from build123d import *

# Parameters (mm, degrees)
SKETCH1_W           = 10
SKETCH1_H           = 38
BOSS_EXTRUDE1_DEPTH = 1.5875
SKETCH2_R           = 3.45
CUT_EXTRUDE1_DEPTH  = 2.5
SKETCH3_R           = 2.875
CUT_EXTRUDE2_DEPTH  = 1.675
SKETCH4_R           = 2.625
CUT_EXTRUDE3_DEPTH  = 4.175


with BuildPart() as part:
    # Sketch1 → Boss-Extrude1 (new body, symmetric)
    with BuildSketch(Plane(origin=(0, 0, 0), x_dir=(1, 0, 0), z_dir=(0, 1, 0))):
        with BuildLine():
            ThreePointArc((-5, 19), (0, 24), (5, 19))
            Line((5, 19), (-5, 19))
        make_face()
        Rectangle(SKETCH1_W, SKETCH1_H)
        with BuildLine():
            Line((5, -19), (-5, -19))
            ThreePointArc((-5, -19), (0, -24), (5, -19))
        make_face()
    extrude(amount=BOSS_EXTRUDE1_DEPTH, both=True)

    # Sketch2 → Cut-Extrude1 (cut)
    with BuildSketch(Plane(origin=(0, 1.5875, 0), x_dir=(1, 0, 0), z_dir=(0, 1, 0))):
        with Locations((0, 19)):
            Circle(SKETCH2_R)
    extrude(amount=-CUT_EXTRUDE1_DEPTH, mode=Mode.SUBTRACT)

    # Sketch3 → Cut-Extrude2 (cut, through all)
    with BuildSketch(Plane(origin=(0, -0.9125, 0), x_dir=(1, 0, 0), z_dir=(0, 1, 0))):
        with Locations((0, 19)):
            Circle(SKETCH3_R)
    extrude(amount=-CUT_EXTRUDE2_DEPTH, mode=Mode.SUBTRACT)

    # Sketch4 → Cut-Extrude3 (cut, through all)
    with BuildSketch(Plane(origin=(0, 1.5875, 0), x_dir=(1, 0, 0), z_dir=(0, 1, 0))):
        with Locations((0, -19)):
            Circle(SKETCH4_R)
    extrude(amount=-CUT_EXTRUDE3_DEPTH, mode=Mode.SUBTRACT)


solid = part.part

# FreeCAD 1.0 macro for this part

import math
import FreeCAD as App
import Part
import Sketcher
from FreeCAD import Vector

doc = App.newDocument("Part")
body = doc.addObject("PartDesign::Body", "Body")

# Sketch on XZ plane
sketch1 = body.newObject("Sketcher::SketchObject", "Sketch")
sketch1.AttachmentSupport = (doc.getObject("XZ_Plane"), [""])
sketch1.MapMode = "FlatFace"
sketch1.addGeometry([
    Part.ArcOfCircle(Part.Circle(Vector(0, -19, 0), Vector(0, 0, 1), 5), math.radians(180), math.radians(360)),
    Part.LineSegment(Vector(-5, -19, 0), Vector(-5, 19, 0)),
    Part.ArcOfCircle(Part.Circle(Vector(0, 19, 0), Vector(0, 0, 1), 5), math.radians(0), math.radians(180)),
    Part.LineSegment(Vector(5, 19, 0), Vector(5, -19, 0)),
], False)
sketch1.addConstraint([
    Sketcher.Constraint("Tangent", 0, 1, 1, 1),
    Sketcher.Constraint("Tangent", 1, 2, 2, 2),
    Sketcher.Constraint("Tangent", 2, 1, 3, 1),
    Sketcher.Constraint("Tangent", 3, 2, 0, 2),
    Sketcher.Constraint("Vertical", 1),
    Sketcher.Constraint("Vertical", 3),
    Sketcher.Constraint("Symmetric", 0, 3, 2, 3, -1, 1),
    Sketcher.Constraint("Radius", 0, 5.0),
    Sketcher.Constraint("DistanceY", 1, 1, 1, 2, 38.0),
])
pad1 = body.newObject("PartDesign::Pad", "Pad")
pad1.Profile = sketch1
pad1.Length = 3.175
pad1.Midplane = True

# Sketch on XZ plane
sketch2 = body.newObject("Sketcher::SketchObject", "Sketch001")
sketch2.AttachmentSupport = (doc.getObject("XZ_Plane"), [""])
sketch2.MapMode = "FlatFace"
sketch2.AttachmentOffset = App.Placement(Vector(0, 0, -1.5875), App.Rotation())
sketch2.addGeometry(Part.Circle(Vector(0, -19, 0), Vector(0, 0, 1), 3.45), False)
sketch2.addConstraint([
    Sketcher.Constraint("PointOnObject", 0, 3, -2),
    Sketcher.Constraint("Diameter", 0, 6.9),
    Sketcher.Constraint("DistanceY", 0, 3, -1, 1, 19.0),
])
pocket1 = body.newObject("PartDesign::Pocket", "Pocket")
pocket1.Profile = sketch2
pocket1.Length = 2.5
pocket1.Reversed = True

# Sketch on XZ plane
sketch3 = body.newObject("Sketcher::SketchObject", "Sketch002")
sketch3.AttachmentSupport = (doc.getObject("XZ_Plane"), [""])
sketch3.MapMode = "FlatFace"
sketch3.AttachmentOffset = App.Placement(Vector(0, 0, 0.9125), App.Rotation())
sketch3.addGeometry(Part.Circle(Vector(0, -19, 0), Vector(0, 0, 1), 2.875), False)
sketch3.addConstraint([
    Sketcher.Constraint("PointOnObject", 0, 3, -2),
    Sketcher.Constraint("Diameter", 0, 5.75),
    Sketcher.Constraint("DistanceY", 0, 3, -1, 1, 19.0),
])
pocket2 = body.newObject("PartDesign::Pocket", "Pocket001")
pocket2.Profile = sketch3
pocket2.Type = "ThroughAll"
pocket2.Reversed = True

# Sketch on XZ plane
sketch4 = body.newObject("Sketcher::SketchObject", "Sketch003")
sketch4.AttachmentSupport = (doc.getObject("XZ_Plane"), [""])
sketch4.MapMode = "FlatFace"
sketch4.AttachmentOffset = App.Placement(Vector(0, 0, -1.5875), App.Rotation())
sketch4.addGeometry(Part.Circle(Vector(0, 19, 0), Vector(0, 0, 1), 2.625), False)
sketch4.addConstraint([
    Sketcher.Constraint("PointOnObject", 0, 3, -2),
    Sketcher.Constraint("Diameter", 0, 5.25),
    Sketcher.Constraint("DistanceY", -1, 1, 0, 3, 19.0),
])
pocket3 = body.newObject("PartDesign::Pocket", "Pocket002")
pocket3.Profile = sketch4
pocket3.Type = "ThroughAll"
pocket3.Reversed = True

doc.recompute()
